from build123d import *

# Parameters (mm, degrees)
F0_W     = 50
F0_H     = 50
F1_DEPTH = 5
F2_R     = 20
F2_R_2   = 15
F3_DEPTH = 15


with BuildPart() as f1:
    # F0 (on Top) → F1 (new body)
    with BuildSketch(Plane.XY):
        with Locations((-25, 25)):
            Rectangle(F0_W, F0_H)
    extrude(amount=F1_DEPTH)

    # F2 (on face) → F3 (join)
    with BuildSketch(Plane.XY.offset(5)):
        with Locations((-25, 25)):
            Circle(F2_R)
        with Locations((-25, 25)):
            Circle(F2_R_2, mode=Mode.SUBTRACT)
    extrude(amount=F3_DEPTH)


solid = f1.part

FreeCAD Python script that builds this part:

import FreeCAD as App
import Part
import Sketcher

doc = App.newDocument("Part")
body = doc.addObject("PartDesign::Body", "Body")

# Sketch on XY plane
sketch1 = body.newObject("Sketcher::SketchObject", "Sketch")
sketch1.AttachmentSupport = (doc.getObject("XY_Plane"), [""])
sketch1.MapMode = "FlatFace"
sketch1.addGeometry([
    Part.LineSegment(App.Vector(-50, 50, 0), App.Vector(-50, 0, 0)),
    Part.LineSegment(App.Vector(-50, 0, 0), App.Vector(0, 0, 0)),
    Part.LineSegment(App.Vector(0, 0, 0), App.Vector(0, 50, 0)),
    Part.LineSegment(App.Vector(0, 50, 0), App.Vector(-50, 50, 0)),
], False)
sketch1.addConstraint([
    Sketcher.Constraint("Coincident", 0, 2, 1, 1),
    Sketcher.Constraint("Coincident", 1, 2, 2, 1),
    Sketcher.Constraint("Coincident", 2, 2, 3, 1),
    Sketcher.Constraint("Coincident", 3, 2, 0, 1),
    Sketcher.Constraint("Vertical", 0),
    Sketcher.Constraint("Horizontal", 1),
    Sketcher.Constraint("Vertical", 2),
    Sketcher.Constraint("Horizontal", 3),
    Sketcher.Constraint("Coincident", 1, 2, -1, 1),
    Sketcher.Constraint("Equal", 3, 0),
    Sketcher.Constraint("DistanceX", 1, 1, 1, 2, 50.0),
])
pad1 = body.newObject("PartDesign::Pad", "Pad")
pad1.Profile = sketch1
pad1.Length = 5

# Sketch on XY plane
sketch2 = body.newObject("Sketcher::SketchObject", "Sketch001")
sketch2.AttachmentSupport = (doc.getObject("XY_Plane"), [""])
sketch2.MapMode = "FlatFace"
sketch2.AttachmentOffset = App.Placement(App.Vector(0, 0, 5), App.Rotation())
sketch2.addGeometry([
    Part.Circle(App.Vector(-25, 25, 0), App.Vector(0, 0, 1), 20),
    Part.Circle(App.Vector(-25, 25, 0), App.Vector(0, 0, 1), 15),
], False)
sketch2.addConstraint([
    Sketcher.Constraint("Coincident", 1, 3, 0, 3),
    Sketcher.Constraint("Diameter", 0, 40.0),
    Sketcher.Constraint("Diameter", 1, 30.0),
    Sketcher.Constraint("DistanceX", 0, 3, -1, 1, 25.0),
    Sketcher.Constraint("DistanceY", -1, 1, 0, 3, 25.0),
])
pad2 = body.newObject("PartDesign::Pad", "Pad001")
pad2.Profile = sketch2
pad2.Length = 15

doc.recompute()
